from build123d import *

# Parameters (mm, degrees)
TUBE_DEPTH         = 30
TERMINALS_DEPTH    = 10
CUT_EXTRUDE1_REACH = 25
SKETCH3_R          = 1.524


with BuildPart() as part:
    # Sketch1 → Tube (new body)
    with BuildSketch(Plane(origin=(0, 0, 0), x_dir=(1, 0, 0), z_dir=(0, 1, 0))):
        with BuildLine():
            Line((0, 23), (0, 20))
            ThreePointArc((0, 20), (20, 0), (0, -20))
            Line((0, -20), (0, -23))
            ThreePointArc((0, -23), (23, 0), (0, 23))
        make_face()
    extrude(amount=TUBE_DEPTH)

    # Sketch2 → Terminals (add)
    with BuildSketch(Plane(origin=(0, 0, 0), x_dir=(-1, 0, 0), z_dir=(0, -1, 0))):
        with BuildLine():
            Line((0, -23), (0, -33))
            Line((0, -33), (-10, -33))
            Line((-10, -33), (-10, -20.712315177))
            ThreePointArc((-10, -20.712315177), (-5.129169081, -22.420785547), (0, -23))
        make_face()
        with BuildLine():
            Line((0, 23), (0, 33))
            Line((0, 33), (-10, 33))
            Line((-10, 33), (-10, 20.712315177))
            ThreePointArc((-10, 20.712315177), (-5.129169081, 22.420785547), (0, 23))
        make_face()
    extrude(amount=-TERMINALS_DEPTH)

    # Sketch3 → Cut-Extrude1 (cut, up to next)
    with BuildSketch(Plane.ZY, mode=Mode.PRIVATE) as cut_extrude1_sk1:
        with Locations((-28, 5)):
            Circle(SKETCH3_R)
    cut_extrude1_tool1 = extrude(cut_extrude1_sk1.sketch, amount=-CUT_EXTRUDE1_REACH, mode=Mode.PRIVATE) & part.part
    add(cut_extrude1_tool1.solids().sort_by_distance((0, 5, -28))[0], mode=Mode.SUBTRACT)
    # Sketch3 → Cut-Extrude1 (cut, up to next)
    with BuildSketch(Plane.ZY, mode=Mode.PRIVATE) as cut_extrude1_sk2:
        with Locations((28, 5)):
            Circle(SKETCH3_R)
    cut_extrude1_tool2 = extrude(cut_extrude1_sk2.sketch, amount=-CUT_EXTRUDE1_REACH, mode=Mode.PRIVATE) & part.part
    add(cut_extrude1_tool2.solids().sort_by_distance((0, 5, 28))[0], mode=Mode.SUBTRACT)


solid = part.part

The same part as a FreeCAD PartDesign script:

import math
import FreeCAD as App
import Part
import Sketcher
Q = App.Units.Quantity

doc = App.newDocument("Part")
body = doc.addObject("PartDesign::Body", "Body")

sketch1 = body.newObject("Sketcher::SketchObject", "Sketch")
sketch1.AttachmentSupport = (doc.getObject("XZ_Plane"), [""])
sketch1.MapMode = "FlatFace"
sketch1.addGeometry(Part.LineSegment(App.Vector(0, -23, 0), App.Vector(0, -20, 0)), False)
sketch1.addGeometry(Part.ArcOfCircle(Part.Circle(App.Vector(0, 0, 0), App.Vector(0, 0, 1), 20), math.radians(-90), math.radians(90)), False)
sketch1.addGeometry(Part.LineSegment(App.Vector(0, 20, 0), App.Vector(0, 23, 0)), False)
sketch1.addGeometry(Part.ArcOfCircle(Part.Circle(App.Vector(0, 0, 0), App.Vector(0, 0, 1), 23), math.radians(-90), math.radians(90)), False)
sketch1.addConstraint(Sketcher.Constraint("Coincident", 0, 2, 1, 1))
sketch1.addConstraint(Sketcher.Constraint("Coincident", 1, 2, 2, 1))
sketch1.addConstraint(Sketcher.Constraint("Coincident", 2, 2, 3, 2))
sketch1.addConstraint(Sketcher.Constraint("Coincident", 3, 1, 0, 1))
sketch1.addConstraint(Sketcher.Constraint("Vertical", 0))
sketch1.addConstraint(Sketcher.Constraint("Vertical", 2))
sketch1.addConstraint(Sketcher.Constraint("Coincident", 1, 3, -1, 1))
sketch1.addConstraint(Sketcher.Constraint("Coincident", 3, 3, -1, 1))
sketch1.addConstraint(Sketcher.Constraint("PointOnObject", 0, 2, -2))
sketch1.addConstraint(Sketcher.Constraint("PointOnObject", 1, 2, -2))
sketch1.addConstraint(Sketcher.Constraint("Radius", 1, Q("20 mm")))
sketch1.addConstraint(Sketcher.Constraint("Radius", 3, Q("23 mm")))
pad1 = body.newObject("PartDesign::Pad", "Pad")
pad1.Profile = sketch1
pad1.Length = 30
pad1.Reversed = True

sketch2 = body.newObject("Sketcher::SketchObject", "Sketch001")
sketch2.AttachmentSupport = (doc.getObject("XZ_Plane"), [""])
sketch2.MapMode = "FlatFace"
sketch2.addGeometry(Part.LineSegment(App.Vector(0, 33, 0), App.Vector(0, 23, 0)), False)
sketch2.addGeometry(Part.ArcOfCircle(Part.Circle(App.Vector(0, 0, 0), App.Vector(0, 0, 1), 23), math.radians(64), math.radians(90)), False)
sketch2.addGeometry(Part.LineSegment(App.Vector(10, 21, 0), App.Vector(10, 33, 0)), False)
sketch2.addGeometry(Part.LineSegment(App.Vector(10, 33, 0), App.Vector(0, 33, 0)), False)
sketch2.addGeometry(Part.LineSegment(App.Vector(0, -23, 0), App.Vector(0, -33, 0)), False)
sketch2.addGeometry(Part.LineSegment(App.Vector(0, -33, 0), App.Vector(10, -33, 0)), False)
sketch2.addGeometry(Part.LineSegment(App.Vector(10, -33, 0), App.Vector(10, -21, 0)), False)
sketch2.addGeometry(Part.ArcOfCircle(Part.Circle(App.Vector(0, 0, 0), App.Vector(0, 0, 1), 23), math.radians(-90), math.radians(-64)), False)
sketch2.addConstraint(Sketcher.Constraint("Coincident", 0, 2, 1, 2))
sketch2.addConstraint(Sketcher.Constraint("Coincident", 1, 1, 2, 1))
sketch2.addConstraint(Sketcher.Constraint("Coincident", 2, 2, 3, 1))
sketch2.addConstraint(Sketcher.Constraint("Coincident", 3, 2, 0, 1))
sketch2.addConstraint(Sketcher.Constraint("Coincident", 4, 2, 5, 1))
sketch2.addConstraint(Sketcher.Constraint("Coincident", 5, 2, 6, 1))
sketch2.addConstraint(Sketcher.Constraint("Coincident", 6, 2, 7, 2))
sketch2.addConstraint(Sketcher.Constraint("Coincident", 7, 1, 4, 1))
sketch2.addConstraint(Sketcher.Constraint("Vertical", 0))
sketch2.addConstraint(Sketcher.Constraint("Vertical", 2))
sketch2.addConstraint(Sketcher.Constraint("Horizontal", 3))
sketch2.addConstraint(Sketcher.Constraint("Vertical", 4))
sketch2.addConstraint(Sketcher.Constraint("Horizontal", 5))
sketch2.addConstraint(Sketcher.Constraint("Vertical", 6))
sketch2.addConstraint(Sketcher.Constraint("Coincident", 1, 3, -1, 1))
sketch2.addConstraint(Sketcher.Constraint("Coincident", 7, 3, -1, 1))
sketch2.addConstraint(Sketcher.Constraint("Equal", 1, 7))
sketch2.addConstraint(Sketcher.Constraint("Symmetric", 3, 2, 4, 2, -1, 1))
sketch2.addConstraint(Sketcher.Constraint("PointOnObject", 0, 2, -2))
sketch2.addConstraint(Sketcher.Constraint("Vertical", 2, 2, 5, 2))
sketch2.addConstraint(Sketcher.Constraint("Equal", 5, 0))
sketch2.addConstraint(Sketcher.Constraint("Radius", 1, Q("23 mm")))
sketch2.addConstraint(Sketcher.Constraint("DistanceX", 3, 2, 3, 1, Q("10 mm")))
pad2 = body.newObject("PartDesign::Pad", "Pad001")
pad2.Profile = sketch2
pad2.Length = 10
pad2.Reversed = True

sketch3 = body.newObject("Sketcher::SketchObject", "Sketch002")
sketch3.AttachmentSupport = (doc.getObject("YZ_Plane"), [""])
sketch3.MapMode = "FlatFace"
sketch3.addGeometry(Part.Circle(App.Vector(5, -28, 0), App.Vector(0, 0, 1), 1.5), False)
sketch3.addConstraint(Sketcher.Constraint("Diameter", 0, Q("3.048 mm")))
sketch3.addConstraint(Sketcher.Constraint("DistanceX", -1, 1, 0, 3, Q("5 mm")))
sketch3.addConstraint(Sketcher.Constraint("DistanceY", 0, 3, -1, 1, Q("28 mm")))
pocket1 = body.newObject("PartDesign::Pocket", "Pocket")
pocket1.Profile = sketch3
pocket1.Type = "UpToFirst"
pocket1.Reversed = True

sketch4 = body.newObject("Sketcher::SketchObject", "Sketch003")
sketch4.AttachmentSupport = (doc.getObject("YZ_Plane"), [""])
sketch4.MapMode = "FlatFace"
sketch4.addGeometry(Part.Circle(App.Vector(5, 28, 0), App.Vector(0, 0, 1), 1.5), False)
sketch4.addConstraint(Sketcher.Constraint("Diameter", 0, Q("3.048 mm")))
sketch4.addConstraint(Sketcher.Constraint("DistanceX", -1, 1, 0, 3, Q("5 mm")))
sketch4.addConstraint(Sketcher.Constraint("DistanceY", -1, 1, 0, 3, Q("28 mm")))
pocket2 = body.newObject("PartDesign::Pocket", "Pocket001")
pocket2.Profile = sketch4
pocket2.Type = "UpToFirst"
pocket2.Reversed = True

doc.recompute()
